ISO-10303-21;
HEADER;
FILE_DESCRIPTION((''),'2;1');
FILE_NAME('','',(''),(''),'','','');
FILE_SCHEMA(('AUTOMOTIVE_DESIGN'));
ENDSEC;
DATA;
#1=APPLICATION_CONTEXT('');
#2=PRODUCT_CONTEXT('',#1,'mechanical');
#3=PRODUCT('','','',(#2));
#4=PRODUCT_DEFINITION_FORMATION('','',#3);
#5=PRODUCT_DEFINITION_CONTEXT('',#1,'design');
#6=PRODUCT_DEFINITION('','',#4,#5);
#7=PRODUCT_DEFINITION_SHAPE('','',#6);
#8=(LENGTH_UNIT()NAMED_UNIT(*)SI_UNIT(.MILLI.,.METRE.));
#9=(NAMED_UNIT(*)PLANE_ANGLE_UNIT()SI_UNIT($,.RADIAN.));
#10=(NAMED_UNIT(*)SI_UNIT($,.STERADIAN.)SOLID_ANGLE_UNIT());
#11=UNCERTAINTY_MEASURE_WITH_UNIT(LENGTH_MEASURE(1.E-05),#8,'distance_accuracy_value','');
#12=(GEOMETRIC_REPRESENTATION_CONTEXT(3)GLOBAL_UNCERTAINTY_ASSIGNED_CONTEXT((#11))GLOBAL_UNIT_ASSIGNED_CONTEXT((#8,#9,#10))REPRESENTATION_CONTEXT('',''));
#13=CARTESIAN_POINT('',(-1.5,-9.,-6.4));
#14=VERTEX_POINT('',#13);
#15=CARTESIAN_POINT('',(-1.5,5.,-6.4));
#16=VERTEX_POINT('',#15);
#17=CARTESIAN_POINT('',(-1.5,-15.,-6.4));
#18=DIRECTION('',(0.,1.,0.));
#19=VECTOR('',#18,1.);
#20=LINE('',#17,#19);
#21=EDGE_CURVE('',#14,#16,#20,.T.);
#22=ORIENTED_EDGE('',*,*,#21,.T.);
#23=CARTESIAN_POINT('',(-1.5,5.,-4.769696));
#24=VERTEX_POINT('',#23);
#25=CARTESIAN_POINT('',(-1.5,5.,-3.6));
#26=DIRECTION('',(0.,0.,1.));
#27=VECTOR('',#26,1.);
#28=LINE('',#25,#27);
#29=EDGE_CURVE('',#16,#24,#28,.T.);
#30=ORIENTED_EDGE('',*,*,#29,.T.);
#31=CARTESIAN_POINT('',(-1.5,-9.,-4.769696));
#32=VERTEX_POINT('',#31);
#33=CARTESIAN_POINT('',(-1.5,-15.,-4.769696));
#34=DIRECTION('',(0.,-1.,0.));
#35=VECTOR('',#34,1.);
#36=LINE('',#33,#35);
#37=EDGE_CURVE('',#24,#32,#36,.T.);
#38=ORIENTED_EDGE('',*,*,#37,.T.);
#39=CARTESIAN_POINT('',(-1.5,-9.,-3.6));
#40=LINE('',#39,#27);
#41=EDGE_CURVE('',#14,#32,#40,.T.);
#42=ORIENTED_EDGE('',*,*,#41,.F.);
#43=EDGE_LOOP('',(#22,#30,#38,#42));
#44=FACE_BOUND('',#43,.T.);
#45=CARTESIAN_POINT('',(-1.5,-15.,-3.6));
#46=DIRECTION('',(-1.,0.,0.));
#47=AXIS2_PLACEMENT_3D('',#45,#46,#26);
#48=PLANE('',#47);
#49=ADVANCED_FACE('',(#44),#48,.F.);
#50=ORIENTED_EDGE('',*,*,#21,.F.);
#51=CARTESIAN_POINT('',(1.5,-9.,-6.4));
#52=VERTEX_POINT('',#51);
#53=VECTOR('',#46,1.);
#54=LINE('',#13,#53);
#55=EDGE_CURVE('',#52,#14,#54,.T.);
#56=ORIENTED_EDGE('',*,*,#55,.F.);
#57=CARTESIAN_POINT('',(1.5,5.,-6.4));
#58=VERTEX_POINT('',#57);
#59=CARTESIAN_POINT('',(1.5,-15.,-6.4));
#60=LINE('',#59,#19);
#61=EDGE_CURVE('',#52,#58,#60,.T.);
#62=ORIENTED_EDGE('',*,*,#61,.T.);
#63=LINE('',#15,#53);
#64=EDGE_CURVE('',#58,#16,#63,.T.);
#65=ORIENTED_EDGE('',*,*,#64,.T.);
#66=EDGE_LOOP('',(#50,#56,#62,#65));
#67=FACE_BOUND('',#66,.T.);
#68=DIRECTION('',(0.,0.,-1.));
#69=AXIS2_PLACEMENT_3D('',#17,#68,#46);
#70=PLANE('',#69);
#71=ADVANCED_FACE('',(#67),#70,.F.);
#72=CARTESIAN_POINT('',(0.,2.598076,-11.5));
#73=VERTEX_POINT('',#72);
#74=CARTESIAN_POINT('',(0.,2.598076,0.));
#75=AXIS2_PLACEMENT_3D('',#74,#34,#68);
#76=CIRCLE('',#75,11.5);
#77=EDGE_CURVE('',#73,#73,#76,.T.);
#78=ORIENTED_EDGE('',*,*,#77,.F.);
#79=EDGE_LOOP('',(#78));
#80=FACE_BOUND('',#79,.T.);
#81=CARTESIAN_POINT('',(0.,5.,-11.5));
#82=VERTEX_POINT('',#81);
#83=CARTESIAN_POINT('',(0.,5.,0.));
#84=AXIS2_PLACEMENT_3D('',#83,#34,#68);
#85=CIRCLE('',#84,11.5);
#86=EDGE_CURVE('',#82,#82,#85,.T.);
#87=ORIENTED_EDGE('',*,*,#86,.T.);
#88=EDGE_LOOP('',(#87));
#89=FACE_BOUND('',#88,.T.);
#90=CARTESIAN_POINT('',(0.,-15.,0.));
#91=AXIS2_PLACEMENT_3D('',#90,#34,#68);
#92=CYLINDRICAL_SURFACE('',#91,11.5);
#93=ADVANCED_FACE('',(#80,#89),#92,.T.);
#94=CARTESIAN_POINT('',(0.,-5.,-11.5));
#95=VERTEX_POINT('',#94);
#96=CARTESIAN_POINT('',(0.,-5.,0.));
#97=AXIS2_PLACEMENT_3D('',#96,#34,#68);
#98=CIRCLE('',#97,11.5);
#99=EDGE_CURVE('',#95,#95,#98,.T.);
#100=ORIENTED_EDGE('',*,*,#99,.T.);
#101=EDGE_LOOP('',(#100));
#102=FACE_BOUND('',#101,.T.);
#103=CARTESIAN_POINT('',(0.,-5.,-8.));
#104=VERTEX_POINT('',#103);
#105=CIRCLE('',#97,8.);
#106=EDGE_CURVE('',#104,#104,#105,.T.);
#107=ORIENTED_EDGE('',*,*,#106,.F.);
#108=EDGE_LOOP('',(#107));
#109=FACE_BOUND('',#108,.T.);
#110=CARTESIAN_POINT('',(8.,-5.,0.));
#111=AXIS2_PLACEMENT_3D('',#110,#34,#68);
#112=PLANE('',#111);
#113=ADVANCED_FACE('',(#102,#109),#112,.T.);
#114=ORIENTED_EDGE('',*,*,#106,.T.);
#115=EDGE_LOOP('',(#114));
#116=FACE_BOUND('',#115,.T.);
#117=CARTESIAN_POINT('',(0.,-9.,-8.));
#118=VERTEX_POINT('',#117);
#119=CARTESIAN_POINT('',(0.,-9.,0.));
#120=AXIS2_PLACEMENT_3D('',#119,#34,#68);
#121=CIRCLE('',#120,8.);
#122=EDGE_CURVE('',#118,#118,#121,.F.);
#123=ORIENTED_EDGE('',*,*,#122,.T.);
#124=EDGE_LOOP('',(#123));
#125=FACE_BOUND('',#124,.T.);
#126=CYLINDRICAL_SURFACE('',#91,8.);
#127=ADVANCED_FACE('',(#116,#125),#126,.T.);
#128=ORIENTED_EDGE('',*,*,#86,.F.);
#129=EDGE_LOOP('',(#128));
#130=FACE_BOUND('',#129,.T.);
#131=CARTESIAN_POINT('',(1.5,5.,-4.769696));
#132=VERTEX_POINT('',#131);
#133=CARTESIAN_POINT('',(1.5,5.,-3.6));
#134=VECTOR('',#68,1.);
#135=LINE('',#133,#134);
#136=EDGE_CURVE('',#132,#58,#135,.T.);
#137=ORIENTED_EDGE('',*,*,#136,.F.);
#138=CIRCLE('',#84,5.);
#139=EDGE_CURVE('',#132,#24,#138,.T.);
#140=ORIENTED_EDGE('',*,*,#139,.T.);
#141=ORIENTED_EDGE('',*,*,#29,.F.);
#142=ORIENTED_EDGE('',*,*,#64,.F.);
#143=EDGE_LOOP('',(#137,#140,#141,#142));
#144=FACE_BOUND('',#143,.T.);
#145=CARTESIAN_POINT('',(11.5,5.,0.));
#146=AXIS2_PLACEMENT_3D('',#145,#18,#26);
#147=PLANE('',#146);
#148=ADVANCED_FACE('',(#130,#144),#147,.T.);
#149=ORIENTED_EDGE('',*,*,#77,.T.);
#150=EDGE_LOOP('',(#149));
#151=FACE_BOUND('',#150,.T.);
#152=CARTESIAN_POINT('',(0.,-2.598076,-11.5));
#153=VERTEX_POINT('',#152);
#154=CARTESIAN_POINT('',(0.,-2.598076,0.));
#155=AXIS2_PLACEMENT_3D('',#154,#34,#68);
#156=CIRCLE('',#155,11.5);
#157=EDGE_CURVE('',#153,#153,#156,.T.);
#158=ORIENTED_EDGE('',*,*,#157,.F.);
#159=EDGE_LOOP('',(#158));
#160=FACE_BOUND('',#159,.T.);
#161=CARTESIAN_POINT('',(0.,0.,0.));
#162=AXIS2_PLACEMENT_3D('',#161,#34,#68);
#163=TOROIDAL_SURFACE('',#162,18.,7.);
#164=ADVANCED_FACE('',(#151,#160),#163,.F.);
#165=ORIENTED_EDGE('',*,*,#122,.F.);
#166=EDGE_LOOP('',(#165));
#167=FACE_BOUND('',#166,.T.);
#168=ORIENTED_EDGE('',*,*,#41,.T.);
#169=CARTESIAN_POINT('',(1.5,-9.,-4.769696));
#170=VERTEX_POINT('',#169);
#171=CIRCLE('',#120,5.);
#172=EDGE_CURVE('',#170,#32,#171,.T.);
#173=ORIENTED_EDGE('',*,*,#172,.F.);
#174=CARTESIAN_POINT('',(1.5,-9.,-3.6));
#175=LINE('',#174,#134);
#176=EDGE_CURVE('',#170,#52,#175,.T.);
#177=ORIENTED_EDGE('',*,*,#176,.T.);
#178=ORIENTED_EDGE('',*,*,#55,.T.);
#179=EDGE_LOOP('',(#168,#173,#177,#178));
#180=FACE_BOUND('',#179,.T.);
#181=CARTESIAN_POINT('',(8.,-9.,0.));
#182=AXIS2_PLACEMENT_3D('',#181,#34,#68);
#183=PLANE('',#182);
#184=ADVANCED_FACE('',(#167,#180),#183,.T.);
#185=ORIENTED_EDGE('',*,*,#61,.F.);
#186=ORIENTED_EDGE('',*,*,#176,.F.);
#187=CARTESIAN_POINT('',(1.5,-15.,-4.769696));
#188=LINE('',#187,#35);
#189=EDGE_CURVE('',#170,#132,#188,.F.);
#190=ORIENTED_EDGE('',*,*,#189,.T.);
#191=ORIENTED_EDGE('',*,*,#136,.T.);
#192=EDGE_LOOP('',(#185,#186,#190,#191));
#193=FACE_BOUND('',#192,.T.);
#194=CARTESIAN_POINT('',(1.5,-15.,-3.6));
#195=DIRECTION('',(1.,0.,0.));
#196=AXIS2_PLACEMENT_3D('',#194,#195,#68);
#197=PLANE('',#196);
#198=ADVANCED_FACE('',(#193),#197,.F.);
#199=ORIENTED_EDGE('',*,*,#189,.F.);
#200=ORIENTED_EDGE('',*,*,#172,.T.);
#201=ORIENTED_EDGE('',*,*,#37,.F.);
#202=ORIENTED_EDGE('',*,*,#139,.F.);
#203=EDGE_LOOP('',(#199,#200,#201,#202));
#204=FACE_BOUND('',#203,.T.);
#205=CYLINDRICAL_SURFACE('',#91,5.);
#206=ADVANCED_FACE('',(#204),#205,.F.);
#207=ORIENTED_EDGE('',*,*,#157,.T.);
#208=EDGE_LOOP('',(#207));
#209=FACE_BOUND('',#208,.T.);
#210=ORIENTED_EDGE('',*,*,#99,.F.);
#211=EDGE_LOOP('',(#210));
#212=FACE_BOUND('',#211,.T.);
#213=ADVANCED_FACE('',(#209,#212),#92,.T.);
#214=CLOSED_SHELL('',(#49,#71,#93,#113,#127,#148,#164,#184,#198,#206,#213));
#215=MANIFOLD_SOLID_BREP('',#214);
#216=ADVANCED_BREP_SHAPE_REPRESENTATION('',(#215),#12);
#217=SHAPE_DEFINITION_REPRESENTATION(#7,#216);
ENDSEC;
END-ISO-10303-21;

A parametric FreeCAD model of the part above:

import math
import FreeCAD as App
import Part
import Sketcher
from FreeCAD import Vector
Q = App.Units.Quantity

doc = App.newDocument("Part")
body = doc.addObject("PartDesign::Body", "Body")

# Sketch on XY plane
sketch1 = body.newObject("Sketcher::SketchObject", "Sketch")
sketch1.AttachmentSupport = (doc.getObject("XY_Plane"), [""])
sketch1.MapMode = "FlatFace"
sketch1.addGeometry(Part.LineSegment(Vector(5, -15, 0), Vector(8, -15, 0)), False)
sketch1.addGeometry(Part.LineSegment(Vector(8, -15, 0), Vector(8, -5, 0)), False)
sketch1.addGeometry(Part.LineSegment(Vector(8, -5, 0), Vector(11.5, -5, 0)), False)
sketch1.addGeometry(Part.LineSegment(Vector(11.5, -5, 0), Vector(11.5, -2.6, 0)), False)
sketch1.addGeometry(Part.ArcOfCircle(Part.Circle(Vector(18, 0, 0), Vector(0, 0, 1), 7), math.radians(158), math.radians(202)), False)
sketch1.addGeometry(Part.LineSegment(Vector(11.5, 2.6, 0), Vector(11.5, 5, 0)), False)
sketch1.addGeometry(Part.LineSegment(Vector(11.5, 5, 0), Vector(5, 5, 0)), False)
sketch1.addGeometry(Part.LineSegment(Vector(5, 5, 0), Vector(5, -15, 0)), False)
sketch1.addConstraint(Sketcher.Constraint("Coincident", 0, 2, 1, 1))
sketch1.addConstraint(Sketcher.Constraint("Coincident", 1, 2, 2, 1))
sketch1.addConstraint(Sketcher.Constraint("Coincident", 2, 2, 3, 1))
sketch1.addConstraint(Sketcher.Constraint("Coincident", 3, 2, 4, 2))
sketch1.addConstraint(Sketcher.Constraint("Coincident", 4, 1, 5, 1))
sketch1.addConstraint(Sketcher.Constraint("Coincident", 5, 2, 6, 1))
sketch1.addConstraint(Sketcher.Constraint("Coincident", 6, 2, 7, 1))
sketch1.addConstraint(Sketcher.Constraint("Coincident", 7, 2, 0, 1))
sketch1.addConstraint(Sketcher.Constraint("Horizontal", 0))
sketch1.addConstraint(Sketcher.Constraint("Vertical", 1))
sketch1.addConstraint(Sketcher.Constraint("Horizontal", 2))
sketch1.addConstraint(Sketcher.Constraint("Vertical", 3))
sketch1.addConstraint(Sketcher.Constraint("Vertical", 5))
sketch1.addConstraint(Sketcher.Constraint("Horizontal", 6))
sketch1.addConstraint(Sketcher.Constraint("Vertical", 7))
sketch1.addConstraint(Sketcher.Constraint("Symmetric", 3, 2, 4, 1, -1))
sketch1.addConstraint(Sketcher.Constraint("Equal", 3, 5))
sketch1.addConstraint(Sketcher.Constraint("Radius", 4, Q("7 mm")))
sketch1.addConstraint(Sketcher.Constraint("DistanceX", 0, 1, 0, 2, Q("3 mm")))
sketch1.addConstraint(Sketcher.Constraint("DistanceY", 1, 1, 1, 2, Q("10 mm")))
sketch1.addConstraint(Sketcher.Constraint("DistanceY", 7, 2, 7, 1, Q("20 mm")))
sketch1.addConstraint(Sketcher.Constraint("DistanceX", 2, 1, 2, 2, Q("3.5 mm")))
sketch1.addConstraint(Sketcher.Constraint("DistanceX", -1, 1, 4, 3, Q("18 mm")))
sketch1.addConstraint(Sketcher.Constraint("DistanceX", -1, 1, 0, 2, Q("8 mm")))
revolution = body.newObject("PartDesign::Revolution", "Revolution")
revolution.Profile = sketch1
revolution.ReferenceAxis = (sketch1, ["V_Axis"])
revolution.Angle = 360

# Sketch on XZ plane
sketch2 = body.newObject("Sketcher::SketchObject", "Sketch001")
sketch2.AttachmentSupport = (doc.getObject("XZ_Plane"), [""])
sketch2.MapMode = "FlatFace"
sketch2.AttachmentOffset = App.Placement(Vector(0, 0, -5), App.Rotation())
sketch2.addGeometry(Part.LineSegment(Vector(-1.5, -6.4, 0), Vector(-1.5, -3.6, 0)), False)
sketch2.addGeometry(Part.LineSegment(Vector(-1.5, -3.6, 0), Vector(1.5, -3.6, 0)), False)
sketch2.addGeometry(Part.LineSegment(Vector(1.5, -3.6, 0), Vector(1.5, -6.4, 0)), False)
sketch2.addGeometry(Part.LineSegment(Vector(1.5, -6.4, 0), Vector(-1.5, -6.4, 0)), False)
sketch2.addConstraint(Sketcher.Constraint("Coincident", 0, 2, 1, 1))
sketch2.addConstraint(Sketcher.Constraint("Coincident", 1, 2, 2, 1))
sketch2.addConstraint(Sketcher.Constraint("Coincident", 2, 2, 3, 1))
sketch2.addConstraint(Sketcher.Constraint("Coincident", 3, 2, 0, 1))
sketch2.addConstraint(Sketcher.Constraint("Vertical", 0))
sketch2.addConstraint(Sketcher.Constraint("Horizontal", 1))
sketch2.addConstraint(Sketcher.Constraint("Vertical", 2))
sketch2.addConstraint(Sketcher.Constraint("Horizontal", 3))
sketch2.addConstraint(Sketcher.Constraint("DistanceX", 1, 1, 1, 2, Q("3 mm")))
sketch2.addConstraint(Sketcher.Constraint("DistanceY", 0, 1, 0, 2, Q("2.8 mm")))
sketch2.addConstraint(Sketcher.Constraint("DistanceX", 0, 2, -1, 1, Q("1.5 mm")))
sketch2.addConstraint(Sketcher.Constraint("DistanceY", 0, 2, -1, 1, Q("3.6 mm")))
pocket1 = body.newObject("PartDesign::Pocket", "Pocket")
pocket1.Profile = sketch2
pocket1.Type = "ThroughAll"
pocket1.Reversed = True

# Sketch on XZ plane
sketch3 = body.newObject("Sketcher::SketchObject", "Sketch002")
sketch3.AttachmentSupport = (doc.getObject("XZ_Plane"), [""])
sketch3.MapMode = "FlatFace"
sketch3.AttachmentOffset = App.Placement(Vector(0, 0, 15), App.Rotation())
sketch3.addGeometry(Part.Circle(Vector(0, 0, 0), Vector(0, 0, 1), 8), False)
sketch3.addConstraint(Sketcher.Constraint("Coincident", 0, 3, -1, 1))
sketch3.addConstraint(Sketcher.Constraint("Diameter", 0, Q("16 mm")))
pocket2 = body.newObject("PartDesign::Pocket", "Pocket001")
pocket2.Profile = sketch3
pocket2.Length = 6

doc.recompute()
